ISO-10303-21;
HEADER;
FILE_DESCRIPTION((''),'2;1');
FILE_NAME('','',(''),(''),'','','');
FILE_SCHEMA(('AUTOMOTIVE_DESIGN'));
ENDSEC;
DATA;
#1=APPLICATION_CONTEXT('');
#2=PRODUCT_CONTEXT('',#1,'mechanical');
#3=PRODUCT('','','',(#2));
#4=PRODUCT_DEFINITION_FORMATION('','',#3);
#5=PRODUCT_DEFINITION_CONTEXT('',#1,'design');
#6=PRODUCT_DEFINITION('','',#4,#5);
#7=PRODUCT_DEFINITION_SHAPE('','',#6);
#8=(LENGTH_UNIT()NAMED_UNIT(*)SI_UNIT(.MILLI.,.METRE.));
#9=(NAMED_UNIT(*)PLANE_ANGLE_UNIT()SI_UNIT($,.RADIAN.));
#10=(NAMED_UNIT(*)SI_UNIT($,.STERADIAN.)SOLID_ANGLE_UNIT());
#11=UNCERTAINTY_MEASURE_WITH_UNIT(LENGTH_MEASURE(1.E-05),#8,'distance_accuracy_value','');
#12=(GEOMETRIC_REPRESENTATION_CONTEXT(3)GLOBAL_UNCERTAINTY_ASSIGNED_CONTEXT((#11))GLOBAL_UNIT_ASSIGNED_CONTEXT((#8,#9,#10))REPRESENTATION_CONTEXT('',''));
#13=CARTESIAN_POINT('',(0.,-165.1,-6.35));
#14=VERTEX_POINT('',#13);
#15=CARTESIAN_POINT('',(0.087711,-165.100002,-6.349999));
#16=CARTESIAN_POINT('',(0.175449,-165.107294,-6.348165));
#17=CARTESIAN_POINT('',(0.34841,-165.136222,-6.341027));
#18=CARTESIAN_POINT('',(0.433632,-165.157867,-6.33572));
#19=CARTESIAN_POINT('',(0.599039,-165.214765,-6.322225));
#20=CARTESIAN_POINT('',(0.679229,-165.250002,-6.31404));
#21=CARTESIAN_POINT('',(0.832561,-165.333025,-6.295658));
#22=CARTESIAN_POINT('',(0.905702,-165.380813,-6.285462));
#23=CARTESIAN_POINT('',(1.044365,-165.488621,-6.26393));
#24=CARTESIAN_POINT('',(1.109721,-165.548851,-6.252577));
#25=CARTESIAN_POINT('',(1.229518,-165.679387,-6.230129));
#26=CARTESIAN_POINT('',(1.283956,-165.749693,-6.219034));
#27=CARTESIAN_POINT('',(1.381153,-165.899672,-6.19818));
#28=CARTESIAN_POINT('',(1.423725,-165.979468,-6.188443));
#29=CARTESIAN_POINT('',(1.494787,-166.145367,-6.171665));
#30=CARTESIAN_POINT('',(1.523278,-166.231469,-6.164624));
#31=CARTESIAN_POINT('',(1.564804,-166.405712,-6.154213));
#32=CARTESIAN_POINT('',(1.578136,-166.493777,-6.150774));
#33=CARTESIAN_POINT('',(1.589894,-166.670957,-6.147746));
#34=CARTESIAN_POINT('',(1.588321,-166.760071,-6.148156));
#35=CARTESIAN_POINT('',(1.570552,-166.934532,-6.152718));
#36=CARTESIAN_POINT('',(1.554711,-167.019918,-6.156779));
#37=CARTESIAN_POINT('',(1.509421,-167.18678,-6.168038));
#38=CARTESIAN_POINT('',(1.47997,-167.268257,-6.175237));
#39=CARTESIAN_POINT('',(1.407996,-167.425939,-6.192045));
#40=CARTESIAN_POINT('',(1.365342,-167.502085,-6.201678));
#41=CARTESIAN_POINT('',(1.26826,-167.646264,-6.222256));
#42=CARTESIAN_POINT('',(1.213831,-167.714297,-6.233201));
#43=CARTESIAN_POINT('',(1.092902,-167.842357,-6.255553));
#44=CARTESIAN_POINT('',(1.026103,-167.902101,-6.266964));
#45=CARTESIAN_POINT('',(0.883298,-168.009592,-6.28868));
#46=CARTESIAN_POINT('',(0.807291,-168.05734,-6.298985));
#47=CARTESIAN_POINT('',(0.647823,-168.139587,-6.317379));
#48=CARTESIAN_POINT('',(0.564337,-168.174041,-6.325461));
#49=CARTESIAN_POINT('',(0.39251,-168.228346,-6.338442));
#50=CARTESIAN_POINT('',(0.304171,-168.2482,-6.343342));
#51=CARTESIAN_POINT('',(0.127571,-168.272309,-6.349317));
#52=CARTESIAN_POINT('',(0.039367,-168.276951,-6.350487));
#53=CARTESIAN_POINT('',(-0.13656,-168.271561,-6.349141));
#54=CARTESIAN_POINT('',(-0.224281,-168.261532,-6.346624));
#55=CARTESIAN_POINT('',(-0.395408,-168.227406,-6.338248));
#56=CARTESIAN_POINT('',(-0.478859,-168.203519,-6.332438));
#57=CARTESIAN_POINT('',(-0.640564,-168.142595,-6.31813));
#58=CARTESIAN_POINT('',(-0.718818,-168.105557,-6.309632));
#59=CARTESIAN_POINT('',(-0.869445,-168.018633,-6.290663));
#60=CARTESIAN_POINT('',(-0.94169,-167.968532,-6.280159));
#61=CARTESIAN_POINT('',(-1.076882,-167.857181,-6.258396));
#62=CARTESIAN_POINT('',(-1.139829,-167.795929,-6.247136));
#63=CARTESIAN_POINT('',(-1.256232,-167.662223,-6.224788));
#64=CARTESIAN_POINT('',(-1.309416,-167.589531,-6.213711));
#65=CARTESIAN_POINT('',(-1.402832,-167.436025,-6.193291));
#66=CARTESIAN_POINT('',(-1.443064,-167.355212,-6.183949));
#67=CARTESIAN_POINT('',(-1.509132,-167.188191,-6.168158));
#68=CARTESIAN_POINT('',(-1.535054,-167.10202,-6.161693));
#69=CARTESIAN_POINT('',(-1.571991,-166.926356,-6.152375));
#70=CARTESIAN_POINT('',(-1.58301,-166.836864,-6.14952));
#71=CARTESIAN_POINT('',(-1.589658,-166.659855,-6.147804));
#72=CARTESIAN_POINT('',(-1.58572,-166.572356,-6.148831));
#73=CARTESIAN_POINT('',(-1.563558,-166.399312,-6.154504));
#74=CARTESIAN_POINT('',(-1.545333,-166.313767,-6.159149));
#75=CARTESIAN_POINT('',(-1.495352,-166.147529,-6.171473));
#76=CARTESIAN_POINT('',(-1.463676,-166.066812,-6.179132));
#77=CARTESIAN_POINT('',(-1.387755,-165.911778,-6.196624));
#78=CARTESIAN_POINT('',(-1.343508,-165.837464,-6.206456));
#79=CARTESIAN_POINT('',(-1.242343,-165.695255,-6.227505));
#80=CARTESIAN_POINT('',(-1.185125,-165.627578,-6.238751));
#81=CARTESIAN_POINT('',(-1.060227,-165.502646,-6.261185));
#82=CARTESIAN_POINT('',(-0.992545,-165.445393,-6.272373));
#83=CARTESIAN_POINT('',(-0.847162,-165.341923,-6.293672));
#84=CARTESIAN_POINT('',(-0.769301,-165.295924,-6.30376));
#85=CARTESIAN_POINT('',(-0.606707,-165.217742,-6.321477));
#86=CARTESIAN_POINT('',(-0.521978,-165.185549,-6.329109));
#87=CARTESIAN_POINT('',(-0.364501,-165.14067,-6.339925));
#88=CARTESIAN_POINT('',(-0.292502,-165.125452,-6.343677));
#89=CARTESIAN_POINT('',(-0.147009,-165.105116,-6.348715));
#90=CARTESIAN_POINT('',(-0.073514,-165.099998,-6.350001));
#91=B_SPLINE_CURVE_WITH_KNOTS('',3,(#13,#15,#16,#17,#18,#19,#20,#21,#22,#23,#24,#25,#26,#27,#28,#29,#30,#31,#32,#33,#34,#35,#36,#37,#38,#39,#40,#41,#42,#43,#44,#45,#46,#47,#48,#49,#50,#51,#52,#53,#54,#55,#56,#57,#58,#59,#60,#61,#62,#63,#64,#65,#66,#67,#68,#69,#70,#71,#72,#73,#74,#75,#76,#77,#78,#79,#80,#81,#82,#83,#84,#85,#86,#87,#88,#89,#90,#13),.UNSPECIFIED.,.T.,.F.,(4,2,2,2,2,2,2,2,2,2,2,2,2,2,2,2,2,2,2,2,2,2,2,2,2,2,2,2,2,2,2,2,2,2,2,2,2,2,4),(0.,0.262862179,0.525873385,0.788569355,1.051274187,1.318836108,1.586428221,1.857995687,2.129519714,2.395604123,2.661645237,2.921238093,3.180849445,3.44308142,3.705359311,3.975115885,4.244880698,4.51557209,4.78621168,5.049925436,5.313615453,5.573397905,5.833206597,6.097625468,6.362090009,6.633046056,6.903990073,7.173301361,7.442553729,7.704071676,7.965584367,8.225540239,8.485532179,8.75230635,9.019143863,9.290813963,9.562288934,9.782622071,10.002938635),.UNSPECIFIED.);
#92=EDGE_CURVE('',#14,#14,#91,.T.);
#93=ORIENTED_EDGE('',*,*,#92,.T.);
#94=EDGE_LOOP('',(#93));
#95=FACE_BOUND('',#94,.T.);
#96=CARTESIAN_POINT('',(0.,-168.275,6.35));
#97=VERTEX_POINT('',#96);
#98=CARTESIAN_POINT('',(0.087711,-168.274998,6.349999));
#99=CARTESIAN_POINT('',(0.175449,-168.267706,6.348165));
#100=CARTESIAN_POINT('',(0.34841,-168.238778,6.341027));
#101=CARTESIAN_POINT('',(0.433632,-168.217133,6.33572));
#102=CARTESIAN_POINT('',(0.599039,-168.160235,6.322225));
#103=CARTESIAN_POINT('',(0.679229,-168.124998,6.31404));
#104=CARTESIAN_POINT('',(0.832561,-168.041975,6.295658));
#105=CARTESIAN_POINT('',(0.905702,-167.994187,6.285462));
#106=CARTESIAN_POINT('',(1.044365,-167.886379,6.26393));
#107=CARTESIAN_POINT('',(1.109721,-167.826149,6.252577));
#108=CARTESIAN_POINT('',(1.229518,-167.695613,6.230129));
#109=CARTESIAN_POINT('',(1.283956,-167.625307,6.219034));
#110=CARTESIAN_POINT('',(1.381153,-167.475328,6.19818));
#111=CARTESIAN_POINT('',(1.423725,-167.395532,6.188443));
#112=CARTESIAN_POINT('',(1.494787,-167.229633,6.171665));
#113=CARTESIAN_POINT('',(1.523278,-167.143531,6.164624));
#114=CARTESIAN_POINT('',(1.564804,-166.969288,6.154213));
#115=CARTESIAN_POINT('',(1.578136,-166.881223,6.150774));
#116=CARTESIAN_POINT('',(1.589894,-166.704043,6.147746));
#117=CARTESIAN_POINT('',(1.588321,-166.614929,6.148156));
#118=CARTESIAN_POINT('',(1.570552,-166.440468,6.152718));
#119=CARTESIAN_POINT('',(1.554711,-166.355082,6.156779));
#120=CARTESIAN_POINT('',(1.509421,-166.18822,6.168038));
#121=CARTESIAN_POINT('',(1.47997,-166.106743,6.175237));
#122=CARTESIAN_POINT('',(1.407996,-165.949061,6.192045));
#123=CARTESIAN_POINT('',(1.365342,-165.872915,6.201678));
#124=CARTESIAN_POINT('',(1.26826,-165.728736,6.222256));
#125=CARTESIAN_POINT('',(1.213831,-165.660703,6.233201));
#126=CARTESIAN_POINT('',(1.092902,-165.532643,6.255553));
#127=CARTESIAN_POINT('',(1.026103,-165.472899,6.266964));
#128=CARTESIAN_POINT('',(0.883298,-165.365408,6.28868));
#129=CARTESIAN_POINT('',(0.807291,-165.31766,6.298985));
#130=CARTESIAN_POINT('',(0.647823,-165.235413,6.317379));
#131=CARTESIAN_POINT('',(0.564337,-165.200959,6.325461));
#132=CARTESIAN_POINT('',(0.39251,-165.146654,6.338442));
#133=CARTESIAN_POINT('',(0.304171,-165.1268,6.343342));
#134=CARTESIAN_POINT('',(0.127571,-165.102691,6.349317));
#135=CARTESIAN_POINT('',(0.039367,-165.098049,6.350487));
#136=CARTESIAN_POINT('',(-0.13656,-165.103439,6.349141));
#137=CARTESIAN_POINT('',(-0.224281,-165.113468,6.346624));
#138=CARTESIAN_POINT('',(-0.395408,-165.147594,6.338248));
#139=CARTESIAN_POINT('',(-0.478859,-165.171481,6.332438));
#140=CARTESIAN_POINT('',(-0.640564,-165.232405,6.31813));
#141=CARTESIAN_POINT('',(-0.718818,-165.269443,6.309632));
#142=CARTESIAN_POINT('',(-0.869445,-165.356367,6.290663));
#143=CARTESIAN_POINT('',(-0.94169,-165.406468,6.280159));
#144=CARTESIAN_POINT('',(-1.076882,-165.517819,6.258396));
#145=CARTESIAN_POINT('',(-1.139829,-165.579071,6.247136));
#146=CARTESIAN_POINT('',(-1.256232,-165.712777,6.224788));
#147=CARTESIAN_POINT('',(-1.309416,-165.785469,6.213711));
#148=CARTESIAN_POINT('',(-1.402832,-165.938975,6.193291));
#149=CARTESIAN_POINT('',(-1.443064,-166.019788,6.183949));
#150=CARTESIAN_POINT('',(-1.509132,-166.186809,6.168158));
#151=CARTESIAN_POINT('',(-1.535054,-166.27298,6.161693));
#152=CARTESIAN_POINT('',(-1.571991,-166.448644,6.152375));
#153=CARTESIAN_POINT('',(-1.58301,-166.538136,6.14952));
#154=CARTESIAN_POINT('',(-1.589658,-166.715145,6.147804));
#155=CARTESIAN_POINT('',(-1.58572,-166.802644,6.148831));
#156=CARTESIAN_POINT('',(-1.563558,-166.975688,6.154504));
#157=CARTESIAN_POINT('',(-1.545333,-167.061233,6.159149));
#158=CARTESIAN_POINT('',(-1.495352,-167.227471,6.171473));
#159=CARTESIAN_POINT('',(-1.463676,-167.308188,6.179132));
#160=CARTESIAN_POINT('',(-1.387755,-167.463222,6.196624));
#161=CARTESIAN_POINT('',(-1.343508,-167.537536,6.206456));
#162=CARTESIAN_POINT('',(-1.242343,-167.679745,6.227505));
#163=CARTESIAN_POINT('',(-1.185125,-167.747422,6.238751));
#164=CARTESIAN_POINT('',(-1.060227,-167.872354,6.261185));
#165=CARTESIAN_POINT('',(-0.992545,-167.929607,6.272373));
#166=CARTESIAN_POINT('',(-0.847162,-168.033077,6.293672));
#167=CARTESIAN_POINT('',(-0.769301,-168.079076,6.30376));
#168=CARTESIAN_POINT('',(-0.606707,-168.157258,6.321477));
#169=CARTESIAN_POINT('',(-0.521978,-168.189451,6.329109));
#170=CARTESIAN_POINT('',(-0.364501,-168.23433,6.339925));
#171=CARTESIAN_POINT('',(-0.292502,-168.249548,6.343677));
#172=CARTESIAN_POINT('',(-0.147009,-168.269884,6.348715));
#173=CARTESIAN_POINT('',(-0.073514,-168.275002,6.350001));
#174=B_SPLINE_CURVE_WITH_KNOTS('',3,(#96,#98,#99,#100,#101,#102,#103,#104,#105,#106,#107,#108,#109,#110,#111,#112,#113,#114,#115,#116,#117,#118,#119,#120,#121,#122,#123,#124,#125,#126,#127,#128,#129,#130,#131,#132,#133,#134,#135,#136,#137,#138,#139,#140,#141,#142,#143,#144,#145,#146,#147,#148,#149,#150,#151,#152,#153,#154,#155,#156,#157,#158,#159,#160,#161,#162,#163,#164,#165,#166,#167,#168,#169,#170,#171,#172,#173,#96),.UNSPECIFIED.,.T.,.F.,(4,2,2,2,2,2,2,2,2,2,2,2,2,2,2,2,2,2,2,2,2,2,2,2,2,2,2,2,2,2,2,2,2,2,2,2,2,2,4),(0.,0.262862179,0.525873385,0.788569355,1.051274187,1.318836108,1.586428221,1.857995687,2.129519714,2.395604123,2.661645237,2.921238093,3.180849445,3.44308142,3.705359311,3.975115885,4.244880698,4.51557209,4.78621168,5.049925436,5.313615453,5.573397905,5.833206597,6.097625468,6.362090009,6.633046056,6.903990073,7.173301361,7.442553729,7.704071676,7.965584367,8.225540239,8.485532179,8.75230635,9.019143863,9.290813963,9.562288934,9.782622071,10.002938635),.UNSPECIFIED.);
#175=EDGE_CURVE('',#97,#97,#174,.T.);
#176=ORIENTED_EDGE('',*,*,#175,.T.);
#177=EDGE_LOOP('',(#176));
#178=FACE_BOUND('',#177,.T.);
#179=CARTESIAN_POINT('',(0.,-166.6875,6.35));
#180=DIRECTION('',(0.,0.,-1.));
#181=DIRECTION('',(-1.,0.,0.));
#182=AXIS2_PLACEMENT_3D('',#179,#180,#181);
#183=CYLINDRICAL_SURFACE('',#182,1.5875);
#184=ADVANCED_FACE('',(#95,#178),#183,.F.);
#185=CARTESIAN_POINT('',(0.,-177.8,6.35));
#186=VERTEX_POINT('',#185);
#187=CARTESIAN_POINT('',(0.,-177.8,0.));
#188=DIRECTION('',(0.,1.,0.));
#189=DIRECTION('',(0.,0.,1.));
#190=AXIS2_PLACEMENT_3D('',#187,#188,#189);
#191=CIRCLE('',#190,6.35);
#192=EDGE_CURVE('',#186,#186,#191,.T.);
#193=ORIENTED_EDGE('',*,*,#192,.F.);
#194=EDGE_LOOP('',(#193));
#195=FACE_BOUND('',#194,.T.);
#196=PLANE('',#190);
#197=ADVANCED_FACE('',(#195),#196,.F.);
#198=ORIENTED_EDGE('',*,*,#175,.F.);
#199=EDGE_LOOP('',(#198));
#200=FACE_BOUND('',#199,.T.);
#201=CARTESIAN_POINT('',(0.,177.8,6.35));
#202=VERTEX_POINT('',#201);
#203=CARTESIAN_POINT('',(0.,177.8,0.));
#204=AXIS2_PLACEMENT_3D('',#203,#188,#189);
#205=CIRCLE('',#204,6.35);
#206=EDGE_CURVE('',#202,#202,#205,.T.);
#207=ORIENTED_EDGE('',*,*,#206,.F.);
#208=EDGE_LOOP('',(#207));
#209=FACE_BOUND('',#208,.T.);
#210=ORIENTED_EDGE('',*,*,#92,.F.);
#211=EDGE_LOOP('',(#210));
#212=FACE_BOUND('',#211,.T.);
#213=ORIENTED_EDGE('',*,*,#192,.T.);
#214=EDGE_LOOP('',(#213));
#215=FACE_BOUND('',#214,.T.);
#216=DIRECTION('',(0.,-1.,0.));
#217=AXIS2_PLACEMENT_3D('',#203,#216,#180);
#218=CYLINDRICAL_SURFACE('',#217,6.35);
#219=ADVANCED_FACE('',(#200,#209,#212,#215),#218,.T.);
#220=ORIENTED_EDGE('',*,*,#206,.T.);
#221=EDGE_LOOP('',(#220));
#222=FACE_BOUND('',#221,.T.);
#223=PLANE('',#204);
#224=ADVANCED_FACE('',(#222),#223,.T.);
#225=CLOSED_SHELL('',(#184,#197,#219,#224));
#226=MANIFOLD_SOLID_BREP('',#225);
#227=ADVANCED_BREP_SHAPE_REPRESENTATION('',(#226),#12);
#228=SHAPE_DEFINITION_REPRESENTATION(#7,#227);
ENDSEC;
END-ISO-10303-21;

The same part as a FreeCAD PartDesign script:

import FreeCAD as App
import Part
import Sketcher

V = App.Vector
Q = App.Units.Quantity

doc = App.newDocument("Part")
body = doc.addObject("PartDesign::Body", "Body")

sketch1 = doc.addObject("Sketcher::SketchObject", "Sketch")
body.addObject(sketch1)
sketch1.AttachmentSupport = (doc.XZ_Plane, [""])
sketch1.MapMode = "FlatFace"
sketch1.addGeometry(Part.Circle(V(0, 0, 0), V(0, 0, 1), 6), False)
sketch1.addConstraint([
    Sketcher.Constraint("Coincident", 0, 3, -1, 1),
    Sketcher.Constraint("Diameter", 0, Q("0.5 in")),
])
pad1 = doc.addObject("PartDesign::Pad", "Pad")
body.addObject(pad1)
pad1.Profile = sketch1
pad1.Length = Q("14 in")
pad1.Midplane = True

sketch2 = doc.addObject("Sketcher::SketchObject", "Sketch001")
body.addObject(sketch2)
sketch2.AttachmentSupport = (doc.XY_Plane, [""])
sketch2.MapMode = "FlatFace"
sketch2.addGeometry(Part.Circle(V(0, -166.7, 0), V(0, 0, 1), 1.6), False)
sketch2.addConstraint([
    Sketcher.Constraint("PointOnObject", 0, 3, -2),
    Sketcher.Constraint("Diameter", 0, Q("0.125 in")),
    Sketcher.Constraint("DistanceY", 0, 3, -1, 1, Q("6.5625 in")),
])
pocket1 = doc.addObject("PartDesign::Pocket", "Pocket")
body.addObject(pocket1)
pocket1.Profile = sketch2
pocket1.Type = "ThroughAll"
pocket1.Midplane = True

doc.recompute()
